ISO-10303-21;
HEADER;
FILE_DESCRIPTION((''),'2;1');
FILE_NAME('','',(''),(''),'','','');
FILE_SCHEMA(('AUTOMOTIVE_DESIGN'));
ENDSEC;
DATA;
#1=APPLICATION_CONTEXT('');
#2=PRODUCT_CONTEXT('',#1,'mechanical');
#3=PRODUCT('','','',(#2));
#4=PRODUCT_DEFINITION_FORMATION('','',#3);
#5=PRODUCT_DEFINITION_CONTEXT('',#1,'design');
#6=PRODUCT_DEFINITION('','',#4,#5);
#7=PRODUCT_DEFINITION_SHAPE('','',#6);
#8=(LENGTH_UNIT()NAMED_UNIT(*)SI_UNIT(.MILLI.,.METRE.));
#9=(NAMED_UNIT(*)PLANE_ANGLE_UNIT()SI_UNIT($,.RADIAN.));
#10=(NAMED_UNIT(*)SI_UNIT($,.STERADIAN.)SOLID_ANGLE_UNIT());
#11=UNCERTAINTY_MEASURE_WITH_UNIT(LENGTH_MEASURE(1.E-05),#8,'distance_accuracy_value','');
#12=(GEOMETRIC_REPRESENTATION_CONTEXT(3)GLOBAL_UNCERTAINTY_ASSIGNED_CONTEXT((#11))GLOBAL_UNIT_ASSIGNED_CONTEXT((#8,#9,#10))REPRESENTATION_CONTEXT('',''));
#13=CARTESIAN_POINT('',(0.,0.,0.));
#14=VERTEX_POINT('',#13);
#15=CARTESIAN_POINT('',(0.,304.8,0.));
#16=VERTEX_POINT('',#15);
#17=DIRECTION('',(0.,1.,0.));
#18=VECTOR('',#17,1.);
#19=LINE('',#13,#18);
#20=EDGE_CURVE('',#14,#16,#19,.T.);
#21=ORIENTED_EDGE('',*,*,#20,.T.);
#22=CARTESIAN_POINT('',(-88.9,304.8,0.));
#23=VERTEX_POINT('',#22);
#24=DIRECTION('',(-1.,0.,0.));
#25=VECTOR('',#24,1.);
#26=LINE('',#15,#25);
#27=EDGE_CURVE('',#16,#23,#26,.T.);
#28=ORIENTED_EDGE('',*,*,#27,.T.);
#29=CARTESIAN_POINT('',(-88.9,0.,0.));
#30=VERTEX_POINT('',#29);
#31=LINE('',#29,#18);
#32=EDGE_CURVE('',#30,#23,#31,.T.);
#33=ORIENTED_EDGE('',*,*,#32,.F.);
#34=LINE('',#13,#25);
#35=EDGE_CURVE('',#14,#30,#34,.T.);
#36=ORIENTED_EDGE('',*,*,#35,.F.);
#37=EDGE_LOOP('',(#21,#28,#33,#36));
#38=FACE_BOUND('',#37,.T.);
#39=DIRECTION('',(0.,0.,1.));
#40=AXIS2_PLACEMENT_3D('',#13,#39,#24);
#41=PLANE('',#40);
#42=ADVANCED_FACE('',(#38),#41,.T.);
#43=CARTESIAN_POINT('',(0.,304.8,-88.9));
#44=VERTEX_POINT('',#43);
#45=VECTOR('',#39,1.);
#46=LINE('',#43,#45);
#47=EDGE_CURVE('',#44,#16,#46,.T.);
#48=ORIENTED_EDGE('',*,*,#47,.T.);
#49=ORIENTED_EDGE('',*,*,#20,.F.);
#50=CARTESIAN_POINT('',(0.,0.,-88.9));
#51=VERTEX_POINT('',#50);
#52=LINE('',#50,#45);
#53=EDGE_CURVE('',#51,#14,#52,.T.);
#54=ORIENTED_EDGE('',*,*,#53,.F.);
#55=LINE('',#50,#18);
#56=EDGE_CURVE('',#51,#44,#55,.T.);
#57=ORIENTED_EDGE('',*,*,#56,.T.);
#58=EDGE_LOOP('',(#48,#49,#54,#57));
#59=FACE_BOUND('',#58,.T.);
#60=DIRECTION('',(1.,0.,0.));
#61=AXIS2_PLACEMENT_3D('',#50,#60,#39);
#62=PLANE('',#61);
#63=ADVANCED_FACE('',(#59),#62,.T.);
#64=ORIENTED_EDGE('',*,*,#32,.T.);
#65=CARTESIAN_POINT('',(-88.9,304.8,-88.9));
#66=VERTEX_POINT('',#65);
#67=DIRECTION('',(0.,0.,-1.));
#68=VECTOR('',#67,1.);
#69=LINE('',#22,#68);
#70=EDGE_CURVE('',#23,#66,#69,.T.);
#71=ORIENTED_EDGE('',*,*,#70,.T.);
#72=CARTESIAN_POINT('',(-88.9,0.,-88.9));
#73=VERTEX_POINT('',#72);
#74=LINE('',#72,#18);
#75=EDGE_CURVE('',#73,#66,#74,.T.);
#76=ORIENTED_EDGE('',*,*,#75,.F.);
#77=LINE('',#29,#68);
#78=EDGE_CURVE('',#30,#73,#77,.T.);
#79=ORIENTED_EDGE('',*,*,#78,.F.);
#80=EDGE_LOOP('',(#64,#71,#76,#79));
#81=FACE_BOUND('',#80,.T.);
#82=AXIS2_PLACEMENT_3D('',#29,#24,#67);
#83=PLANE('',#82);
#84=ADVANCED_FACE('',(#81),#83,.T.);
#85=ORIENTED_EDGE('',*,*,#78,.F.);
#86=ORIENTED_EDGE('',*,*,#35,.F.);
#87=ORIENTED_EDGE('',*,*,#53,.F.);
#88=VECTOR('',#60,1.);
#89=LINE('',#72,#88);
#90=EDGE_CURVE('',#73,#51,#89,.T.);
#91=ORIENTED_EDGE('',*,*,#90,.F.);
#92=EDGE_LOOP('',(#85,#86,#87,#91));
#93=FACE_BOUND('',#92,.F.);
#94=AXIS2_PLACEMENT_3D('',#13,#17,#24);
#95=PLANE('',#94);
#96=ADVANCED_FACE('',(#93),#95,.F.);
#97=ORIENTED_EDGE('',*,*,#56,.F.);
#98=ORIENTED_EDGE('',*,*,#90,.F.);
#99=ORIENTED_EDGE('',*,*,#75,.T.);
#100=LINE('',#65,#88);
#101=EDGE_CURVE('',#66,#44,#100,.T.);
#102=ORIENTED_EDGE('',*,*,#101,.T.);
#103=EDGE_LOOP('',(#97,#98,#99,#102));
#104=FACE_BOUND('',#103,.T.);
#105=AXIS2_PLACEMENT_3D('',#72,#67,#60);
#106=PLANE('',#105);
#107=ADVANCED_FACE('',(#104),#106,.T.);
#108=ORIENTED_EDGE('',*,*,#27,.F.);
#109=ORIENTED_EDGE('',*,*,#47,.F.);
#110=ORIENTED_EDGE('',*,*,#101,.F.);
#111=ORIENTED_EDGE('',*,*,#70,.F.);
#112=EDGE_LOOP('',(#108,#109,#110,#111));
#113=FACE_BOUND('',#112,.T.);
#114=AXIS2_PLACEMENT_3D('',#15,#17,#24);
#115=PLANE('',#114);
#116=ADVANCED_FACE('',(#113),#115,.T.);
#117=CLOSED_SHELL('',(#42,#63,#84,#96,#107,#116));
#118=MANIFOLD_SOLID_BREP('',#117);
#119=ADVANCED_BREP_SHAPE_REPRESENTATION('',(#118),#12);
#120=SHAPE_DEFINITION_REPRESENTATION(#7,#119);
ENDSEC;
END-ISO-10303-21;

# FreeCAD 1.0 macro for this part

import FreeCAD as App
import Part
import Sketcher
Q = App.Units.Quantity

doc = App.newDocument("Part")
body = doc.addObject("PartDesign::Body", "Body")

# Sketch on XZ plane
sketch1 = body.newObject("Sketcher::SketchObject", "Sketch")
sketch1.AttachmentSupport = (doc.getObject("XZ_Plane"), [""])
sketch1.MapMode = "FlatFace"
sketch1.addGeometry(Part.LineSegment(App.Vector(-89, 0, 0), App.Vector(0, 0, 0)), False)
sketch1.addGeometry(Part.LineSegment(App.Vector(0, 0, 0), App.Vector(0, -89, 0)), False)
sketch1.addGeometry(Part.LineSegment(App.Vector(0, -89, 0), App.Vector(-89, -89, 0)), False)
sketch1.addGeometry(Part.LineSegment(App.Vector(-89, -89, 0), App.Vector(-89, 0, 0)), False)
sketch1.addConstraint(Sketcher.Constraint("Coincident", 0, 2, 1, 1))
sketch1.addConstraint(Sketcher.Constraint("Coincident", 1, 2, 2, 1))
sketch1.addConstraint(Sketcher.Constraint("Coincident", 2, 2, 3, 1))
sketch1.addConstraint(Sketcher.Constraint("Coincident", 3, 2, 0, 1))
sketch1.addConstraint(Sketcher.Constraint("Horizontal", 0))
sketch1.addConstraint(Sketcher.Constraint("Vertical", 1))
sketch1.addConstraint(Sketcher.Constraint("Horizontal", 2))
sketch1.addConstraint(Sketcher.Constraint("Vertical", 3))
sketch1.addConstraint(Sketcher.Constraint("Coincident", 0, 2, -1, 1))
sketch1.addConstraint(Sketcher.Constraint("Equal", 2, 1))
sketch1.addConstraint(Sketcher.Constraint("DistanceX", 0, 1, 0, 2, Q("3.5 in")))
pad1 = body.newObject("PartDesign::Pad", "Pad")
pad1.Profile = sketch1
pad1.Length = Q("12 in")
pad1.Reversed = True

doc.recompute()
